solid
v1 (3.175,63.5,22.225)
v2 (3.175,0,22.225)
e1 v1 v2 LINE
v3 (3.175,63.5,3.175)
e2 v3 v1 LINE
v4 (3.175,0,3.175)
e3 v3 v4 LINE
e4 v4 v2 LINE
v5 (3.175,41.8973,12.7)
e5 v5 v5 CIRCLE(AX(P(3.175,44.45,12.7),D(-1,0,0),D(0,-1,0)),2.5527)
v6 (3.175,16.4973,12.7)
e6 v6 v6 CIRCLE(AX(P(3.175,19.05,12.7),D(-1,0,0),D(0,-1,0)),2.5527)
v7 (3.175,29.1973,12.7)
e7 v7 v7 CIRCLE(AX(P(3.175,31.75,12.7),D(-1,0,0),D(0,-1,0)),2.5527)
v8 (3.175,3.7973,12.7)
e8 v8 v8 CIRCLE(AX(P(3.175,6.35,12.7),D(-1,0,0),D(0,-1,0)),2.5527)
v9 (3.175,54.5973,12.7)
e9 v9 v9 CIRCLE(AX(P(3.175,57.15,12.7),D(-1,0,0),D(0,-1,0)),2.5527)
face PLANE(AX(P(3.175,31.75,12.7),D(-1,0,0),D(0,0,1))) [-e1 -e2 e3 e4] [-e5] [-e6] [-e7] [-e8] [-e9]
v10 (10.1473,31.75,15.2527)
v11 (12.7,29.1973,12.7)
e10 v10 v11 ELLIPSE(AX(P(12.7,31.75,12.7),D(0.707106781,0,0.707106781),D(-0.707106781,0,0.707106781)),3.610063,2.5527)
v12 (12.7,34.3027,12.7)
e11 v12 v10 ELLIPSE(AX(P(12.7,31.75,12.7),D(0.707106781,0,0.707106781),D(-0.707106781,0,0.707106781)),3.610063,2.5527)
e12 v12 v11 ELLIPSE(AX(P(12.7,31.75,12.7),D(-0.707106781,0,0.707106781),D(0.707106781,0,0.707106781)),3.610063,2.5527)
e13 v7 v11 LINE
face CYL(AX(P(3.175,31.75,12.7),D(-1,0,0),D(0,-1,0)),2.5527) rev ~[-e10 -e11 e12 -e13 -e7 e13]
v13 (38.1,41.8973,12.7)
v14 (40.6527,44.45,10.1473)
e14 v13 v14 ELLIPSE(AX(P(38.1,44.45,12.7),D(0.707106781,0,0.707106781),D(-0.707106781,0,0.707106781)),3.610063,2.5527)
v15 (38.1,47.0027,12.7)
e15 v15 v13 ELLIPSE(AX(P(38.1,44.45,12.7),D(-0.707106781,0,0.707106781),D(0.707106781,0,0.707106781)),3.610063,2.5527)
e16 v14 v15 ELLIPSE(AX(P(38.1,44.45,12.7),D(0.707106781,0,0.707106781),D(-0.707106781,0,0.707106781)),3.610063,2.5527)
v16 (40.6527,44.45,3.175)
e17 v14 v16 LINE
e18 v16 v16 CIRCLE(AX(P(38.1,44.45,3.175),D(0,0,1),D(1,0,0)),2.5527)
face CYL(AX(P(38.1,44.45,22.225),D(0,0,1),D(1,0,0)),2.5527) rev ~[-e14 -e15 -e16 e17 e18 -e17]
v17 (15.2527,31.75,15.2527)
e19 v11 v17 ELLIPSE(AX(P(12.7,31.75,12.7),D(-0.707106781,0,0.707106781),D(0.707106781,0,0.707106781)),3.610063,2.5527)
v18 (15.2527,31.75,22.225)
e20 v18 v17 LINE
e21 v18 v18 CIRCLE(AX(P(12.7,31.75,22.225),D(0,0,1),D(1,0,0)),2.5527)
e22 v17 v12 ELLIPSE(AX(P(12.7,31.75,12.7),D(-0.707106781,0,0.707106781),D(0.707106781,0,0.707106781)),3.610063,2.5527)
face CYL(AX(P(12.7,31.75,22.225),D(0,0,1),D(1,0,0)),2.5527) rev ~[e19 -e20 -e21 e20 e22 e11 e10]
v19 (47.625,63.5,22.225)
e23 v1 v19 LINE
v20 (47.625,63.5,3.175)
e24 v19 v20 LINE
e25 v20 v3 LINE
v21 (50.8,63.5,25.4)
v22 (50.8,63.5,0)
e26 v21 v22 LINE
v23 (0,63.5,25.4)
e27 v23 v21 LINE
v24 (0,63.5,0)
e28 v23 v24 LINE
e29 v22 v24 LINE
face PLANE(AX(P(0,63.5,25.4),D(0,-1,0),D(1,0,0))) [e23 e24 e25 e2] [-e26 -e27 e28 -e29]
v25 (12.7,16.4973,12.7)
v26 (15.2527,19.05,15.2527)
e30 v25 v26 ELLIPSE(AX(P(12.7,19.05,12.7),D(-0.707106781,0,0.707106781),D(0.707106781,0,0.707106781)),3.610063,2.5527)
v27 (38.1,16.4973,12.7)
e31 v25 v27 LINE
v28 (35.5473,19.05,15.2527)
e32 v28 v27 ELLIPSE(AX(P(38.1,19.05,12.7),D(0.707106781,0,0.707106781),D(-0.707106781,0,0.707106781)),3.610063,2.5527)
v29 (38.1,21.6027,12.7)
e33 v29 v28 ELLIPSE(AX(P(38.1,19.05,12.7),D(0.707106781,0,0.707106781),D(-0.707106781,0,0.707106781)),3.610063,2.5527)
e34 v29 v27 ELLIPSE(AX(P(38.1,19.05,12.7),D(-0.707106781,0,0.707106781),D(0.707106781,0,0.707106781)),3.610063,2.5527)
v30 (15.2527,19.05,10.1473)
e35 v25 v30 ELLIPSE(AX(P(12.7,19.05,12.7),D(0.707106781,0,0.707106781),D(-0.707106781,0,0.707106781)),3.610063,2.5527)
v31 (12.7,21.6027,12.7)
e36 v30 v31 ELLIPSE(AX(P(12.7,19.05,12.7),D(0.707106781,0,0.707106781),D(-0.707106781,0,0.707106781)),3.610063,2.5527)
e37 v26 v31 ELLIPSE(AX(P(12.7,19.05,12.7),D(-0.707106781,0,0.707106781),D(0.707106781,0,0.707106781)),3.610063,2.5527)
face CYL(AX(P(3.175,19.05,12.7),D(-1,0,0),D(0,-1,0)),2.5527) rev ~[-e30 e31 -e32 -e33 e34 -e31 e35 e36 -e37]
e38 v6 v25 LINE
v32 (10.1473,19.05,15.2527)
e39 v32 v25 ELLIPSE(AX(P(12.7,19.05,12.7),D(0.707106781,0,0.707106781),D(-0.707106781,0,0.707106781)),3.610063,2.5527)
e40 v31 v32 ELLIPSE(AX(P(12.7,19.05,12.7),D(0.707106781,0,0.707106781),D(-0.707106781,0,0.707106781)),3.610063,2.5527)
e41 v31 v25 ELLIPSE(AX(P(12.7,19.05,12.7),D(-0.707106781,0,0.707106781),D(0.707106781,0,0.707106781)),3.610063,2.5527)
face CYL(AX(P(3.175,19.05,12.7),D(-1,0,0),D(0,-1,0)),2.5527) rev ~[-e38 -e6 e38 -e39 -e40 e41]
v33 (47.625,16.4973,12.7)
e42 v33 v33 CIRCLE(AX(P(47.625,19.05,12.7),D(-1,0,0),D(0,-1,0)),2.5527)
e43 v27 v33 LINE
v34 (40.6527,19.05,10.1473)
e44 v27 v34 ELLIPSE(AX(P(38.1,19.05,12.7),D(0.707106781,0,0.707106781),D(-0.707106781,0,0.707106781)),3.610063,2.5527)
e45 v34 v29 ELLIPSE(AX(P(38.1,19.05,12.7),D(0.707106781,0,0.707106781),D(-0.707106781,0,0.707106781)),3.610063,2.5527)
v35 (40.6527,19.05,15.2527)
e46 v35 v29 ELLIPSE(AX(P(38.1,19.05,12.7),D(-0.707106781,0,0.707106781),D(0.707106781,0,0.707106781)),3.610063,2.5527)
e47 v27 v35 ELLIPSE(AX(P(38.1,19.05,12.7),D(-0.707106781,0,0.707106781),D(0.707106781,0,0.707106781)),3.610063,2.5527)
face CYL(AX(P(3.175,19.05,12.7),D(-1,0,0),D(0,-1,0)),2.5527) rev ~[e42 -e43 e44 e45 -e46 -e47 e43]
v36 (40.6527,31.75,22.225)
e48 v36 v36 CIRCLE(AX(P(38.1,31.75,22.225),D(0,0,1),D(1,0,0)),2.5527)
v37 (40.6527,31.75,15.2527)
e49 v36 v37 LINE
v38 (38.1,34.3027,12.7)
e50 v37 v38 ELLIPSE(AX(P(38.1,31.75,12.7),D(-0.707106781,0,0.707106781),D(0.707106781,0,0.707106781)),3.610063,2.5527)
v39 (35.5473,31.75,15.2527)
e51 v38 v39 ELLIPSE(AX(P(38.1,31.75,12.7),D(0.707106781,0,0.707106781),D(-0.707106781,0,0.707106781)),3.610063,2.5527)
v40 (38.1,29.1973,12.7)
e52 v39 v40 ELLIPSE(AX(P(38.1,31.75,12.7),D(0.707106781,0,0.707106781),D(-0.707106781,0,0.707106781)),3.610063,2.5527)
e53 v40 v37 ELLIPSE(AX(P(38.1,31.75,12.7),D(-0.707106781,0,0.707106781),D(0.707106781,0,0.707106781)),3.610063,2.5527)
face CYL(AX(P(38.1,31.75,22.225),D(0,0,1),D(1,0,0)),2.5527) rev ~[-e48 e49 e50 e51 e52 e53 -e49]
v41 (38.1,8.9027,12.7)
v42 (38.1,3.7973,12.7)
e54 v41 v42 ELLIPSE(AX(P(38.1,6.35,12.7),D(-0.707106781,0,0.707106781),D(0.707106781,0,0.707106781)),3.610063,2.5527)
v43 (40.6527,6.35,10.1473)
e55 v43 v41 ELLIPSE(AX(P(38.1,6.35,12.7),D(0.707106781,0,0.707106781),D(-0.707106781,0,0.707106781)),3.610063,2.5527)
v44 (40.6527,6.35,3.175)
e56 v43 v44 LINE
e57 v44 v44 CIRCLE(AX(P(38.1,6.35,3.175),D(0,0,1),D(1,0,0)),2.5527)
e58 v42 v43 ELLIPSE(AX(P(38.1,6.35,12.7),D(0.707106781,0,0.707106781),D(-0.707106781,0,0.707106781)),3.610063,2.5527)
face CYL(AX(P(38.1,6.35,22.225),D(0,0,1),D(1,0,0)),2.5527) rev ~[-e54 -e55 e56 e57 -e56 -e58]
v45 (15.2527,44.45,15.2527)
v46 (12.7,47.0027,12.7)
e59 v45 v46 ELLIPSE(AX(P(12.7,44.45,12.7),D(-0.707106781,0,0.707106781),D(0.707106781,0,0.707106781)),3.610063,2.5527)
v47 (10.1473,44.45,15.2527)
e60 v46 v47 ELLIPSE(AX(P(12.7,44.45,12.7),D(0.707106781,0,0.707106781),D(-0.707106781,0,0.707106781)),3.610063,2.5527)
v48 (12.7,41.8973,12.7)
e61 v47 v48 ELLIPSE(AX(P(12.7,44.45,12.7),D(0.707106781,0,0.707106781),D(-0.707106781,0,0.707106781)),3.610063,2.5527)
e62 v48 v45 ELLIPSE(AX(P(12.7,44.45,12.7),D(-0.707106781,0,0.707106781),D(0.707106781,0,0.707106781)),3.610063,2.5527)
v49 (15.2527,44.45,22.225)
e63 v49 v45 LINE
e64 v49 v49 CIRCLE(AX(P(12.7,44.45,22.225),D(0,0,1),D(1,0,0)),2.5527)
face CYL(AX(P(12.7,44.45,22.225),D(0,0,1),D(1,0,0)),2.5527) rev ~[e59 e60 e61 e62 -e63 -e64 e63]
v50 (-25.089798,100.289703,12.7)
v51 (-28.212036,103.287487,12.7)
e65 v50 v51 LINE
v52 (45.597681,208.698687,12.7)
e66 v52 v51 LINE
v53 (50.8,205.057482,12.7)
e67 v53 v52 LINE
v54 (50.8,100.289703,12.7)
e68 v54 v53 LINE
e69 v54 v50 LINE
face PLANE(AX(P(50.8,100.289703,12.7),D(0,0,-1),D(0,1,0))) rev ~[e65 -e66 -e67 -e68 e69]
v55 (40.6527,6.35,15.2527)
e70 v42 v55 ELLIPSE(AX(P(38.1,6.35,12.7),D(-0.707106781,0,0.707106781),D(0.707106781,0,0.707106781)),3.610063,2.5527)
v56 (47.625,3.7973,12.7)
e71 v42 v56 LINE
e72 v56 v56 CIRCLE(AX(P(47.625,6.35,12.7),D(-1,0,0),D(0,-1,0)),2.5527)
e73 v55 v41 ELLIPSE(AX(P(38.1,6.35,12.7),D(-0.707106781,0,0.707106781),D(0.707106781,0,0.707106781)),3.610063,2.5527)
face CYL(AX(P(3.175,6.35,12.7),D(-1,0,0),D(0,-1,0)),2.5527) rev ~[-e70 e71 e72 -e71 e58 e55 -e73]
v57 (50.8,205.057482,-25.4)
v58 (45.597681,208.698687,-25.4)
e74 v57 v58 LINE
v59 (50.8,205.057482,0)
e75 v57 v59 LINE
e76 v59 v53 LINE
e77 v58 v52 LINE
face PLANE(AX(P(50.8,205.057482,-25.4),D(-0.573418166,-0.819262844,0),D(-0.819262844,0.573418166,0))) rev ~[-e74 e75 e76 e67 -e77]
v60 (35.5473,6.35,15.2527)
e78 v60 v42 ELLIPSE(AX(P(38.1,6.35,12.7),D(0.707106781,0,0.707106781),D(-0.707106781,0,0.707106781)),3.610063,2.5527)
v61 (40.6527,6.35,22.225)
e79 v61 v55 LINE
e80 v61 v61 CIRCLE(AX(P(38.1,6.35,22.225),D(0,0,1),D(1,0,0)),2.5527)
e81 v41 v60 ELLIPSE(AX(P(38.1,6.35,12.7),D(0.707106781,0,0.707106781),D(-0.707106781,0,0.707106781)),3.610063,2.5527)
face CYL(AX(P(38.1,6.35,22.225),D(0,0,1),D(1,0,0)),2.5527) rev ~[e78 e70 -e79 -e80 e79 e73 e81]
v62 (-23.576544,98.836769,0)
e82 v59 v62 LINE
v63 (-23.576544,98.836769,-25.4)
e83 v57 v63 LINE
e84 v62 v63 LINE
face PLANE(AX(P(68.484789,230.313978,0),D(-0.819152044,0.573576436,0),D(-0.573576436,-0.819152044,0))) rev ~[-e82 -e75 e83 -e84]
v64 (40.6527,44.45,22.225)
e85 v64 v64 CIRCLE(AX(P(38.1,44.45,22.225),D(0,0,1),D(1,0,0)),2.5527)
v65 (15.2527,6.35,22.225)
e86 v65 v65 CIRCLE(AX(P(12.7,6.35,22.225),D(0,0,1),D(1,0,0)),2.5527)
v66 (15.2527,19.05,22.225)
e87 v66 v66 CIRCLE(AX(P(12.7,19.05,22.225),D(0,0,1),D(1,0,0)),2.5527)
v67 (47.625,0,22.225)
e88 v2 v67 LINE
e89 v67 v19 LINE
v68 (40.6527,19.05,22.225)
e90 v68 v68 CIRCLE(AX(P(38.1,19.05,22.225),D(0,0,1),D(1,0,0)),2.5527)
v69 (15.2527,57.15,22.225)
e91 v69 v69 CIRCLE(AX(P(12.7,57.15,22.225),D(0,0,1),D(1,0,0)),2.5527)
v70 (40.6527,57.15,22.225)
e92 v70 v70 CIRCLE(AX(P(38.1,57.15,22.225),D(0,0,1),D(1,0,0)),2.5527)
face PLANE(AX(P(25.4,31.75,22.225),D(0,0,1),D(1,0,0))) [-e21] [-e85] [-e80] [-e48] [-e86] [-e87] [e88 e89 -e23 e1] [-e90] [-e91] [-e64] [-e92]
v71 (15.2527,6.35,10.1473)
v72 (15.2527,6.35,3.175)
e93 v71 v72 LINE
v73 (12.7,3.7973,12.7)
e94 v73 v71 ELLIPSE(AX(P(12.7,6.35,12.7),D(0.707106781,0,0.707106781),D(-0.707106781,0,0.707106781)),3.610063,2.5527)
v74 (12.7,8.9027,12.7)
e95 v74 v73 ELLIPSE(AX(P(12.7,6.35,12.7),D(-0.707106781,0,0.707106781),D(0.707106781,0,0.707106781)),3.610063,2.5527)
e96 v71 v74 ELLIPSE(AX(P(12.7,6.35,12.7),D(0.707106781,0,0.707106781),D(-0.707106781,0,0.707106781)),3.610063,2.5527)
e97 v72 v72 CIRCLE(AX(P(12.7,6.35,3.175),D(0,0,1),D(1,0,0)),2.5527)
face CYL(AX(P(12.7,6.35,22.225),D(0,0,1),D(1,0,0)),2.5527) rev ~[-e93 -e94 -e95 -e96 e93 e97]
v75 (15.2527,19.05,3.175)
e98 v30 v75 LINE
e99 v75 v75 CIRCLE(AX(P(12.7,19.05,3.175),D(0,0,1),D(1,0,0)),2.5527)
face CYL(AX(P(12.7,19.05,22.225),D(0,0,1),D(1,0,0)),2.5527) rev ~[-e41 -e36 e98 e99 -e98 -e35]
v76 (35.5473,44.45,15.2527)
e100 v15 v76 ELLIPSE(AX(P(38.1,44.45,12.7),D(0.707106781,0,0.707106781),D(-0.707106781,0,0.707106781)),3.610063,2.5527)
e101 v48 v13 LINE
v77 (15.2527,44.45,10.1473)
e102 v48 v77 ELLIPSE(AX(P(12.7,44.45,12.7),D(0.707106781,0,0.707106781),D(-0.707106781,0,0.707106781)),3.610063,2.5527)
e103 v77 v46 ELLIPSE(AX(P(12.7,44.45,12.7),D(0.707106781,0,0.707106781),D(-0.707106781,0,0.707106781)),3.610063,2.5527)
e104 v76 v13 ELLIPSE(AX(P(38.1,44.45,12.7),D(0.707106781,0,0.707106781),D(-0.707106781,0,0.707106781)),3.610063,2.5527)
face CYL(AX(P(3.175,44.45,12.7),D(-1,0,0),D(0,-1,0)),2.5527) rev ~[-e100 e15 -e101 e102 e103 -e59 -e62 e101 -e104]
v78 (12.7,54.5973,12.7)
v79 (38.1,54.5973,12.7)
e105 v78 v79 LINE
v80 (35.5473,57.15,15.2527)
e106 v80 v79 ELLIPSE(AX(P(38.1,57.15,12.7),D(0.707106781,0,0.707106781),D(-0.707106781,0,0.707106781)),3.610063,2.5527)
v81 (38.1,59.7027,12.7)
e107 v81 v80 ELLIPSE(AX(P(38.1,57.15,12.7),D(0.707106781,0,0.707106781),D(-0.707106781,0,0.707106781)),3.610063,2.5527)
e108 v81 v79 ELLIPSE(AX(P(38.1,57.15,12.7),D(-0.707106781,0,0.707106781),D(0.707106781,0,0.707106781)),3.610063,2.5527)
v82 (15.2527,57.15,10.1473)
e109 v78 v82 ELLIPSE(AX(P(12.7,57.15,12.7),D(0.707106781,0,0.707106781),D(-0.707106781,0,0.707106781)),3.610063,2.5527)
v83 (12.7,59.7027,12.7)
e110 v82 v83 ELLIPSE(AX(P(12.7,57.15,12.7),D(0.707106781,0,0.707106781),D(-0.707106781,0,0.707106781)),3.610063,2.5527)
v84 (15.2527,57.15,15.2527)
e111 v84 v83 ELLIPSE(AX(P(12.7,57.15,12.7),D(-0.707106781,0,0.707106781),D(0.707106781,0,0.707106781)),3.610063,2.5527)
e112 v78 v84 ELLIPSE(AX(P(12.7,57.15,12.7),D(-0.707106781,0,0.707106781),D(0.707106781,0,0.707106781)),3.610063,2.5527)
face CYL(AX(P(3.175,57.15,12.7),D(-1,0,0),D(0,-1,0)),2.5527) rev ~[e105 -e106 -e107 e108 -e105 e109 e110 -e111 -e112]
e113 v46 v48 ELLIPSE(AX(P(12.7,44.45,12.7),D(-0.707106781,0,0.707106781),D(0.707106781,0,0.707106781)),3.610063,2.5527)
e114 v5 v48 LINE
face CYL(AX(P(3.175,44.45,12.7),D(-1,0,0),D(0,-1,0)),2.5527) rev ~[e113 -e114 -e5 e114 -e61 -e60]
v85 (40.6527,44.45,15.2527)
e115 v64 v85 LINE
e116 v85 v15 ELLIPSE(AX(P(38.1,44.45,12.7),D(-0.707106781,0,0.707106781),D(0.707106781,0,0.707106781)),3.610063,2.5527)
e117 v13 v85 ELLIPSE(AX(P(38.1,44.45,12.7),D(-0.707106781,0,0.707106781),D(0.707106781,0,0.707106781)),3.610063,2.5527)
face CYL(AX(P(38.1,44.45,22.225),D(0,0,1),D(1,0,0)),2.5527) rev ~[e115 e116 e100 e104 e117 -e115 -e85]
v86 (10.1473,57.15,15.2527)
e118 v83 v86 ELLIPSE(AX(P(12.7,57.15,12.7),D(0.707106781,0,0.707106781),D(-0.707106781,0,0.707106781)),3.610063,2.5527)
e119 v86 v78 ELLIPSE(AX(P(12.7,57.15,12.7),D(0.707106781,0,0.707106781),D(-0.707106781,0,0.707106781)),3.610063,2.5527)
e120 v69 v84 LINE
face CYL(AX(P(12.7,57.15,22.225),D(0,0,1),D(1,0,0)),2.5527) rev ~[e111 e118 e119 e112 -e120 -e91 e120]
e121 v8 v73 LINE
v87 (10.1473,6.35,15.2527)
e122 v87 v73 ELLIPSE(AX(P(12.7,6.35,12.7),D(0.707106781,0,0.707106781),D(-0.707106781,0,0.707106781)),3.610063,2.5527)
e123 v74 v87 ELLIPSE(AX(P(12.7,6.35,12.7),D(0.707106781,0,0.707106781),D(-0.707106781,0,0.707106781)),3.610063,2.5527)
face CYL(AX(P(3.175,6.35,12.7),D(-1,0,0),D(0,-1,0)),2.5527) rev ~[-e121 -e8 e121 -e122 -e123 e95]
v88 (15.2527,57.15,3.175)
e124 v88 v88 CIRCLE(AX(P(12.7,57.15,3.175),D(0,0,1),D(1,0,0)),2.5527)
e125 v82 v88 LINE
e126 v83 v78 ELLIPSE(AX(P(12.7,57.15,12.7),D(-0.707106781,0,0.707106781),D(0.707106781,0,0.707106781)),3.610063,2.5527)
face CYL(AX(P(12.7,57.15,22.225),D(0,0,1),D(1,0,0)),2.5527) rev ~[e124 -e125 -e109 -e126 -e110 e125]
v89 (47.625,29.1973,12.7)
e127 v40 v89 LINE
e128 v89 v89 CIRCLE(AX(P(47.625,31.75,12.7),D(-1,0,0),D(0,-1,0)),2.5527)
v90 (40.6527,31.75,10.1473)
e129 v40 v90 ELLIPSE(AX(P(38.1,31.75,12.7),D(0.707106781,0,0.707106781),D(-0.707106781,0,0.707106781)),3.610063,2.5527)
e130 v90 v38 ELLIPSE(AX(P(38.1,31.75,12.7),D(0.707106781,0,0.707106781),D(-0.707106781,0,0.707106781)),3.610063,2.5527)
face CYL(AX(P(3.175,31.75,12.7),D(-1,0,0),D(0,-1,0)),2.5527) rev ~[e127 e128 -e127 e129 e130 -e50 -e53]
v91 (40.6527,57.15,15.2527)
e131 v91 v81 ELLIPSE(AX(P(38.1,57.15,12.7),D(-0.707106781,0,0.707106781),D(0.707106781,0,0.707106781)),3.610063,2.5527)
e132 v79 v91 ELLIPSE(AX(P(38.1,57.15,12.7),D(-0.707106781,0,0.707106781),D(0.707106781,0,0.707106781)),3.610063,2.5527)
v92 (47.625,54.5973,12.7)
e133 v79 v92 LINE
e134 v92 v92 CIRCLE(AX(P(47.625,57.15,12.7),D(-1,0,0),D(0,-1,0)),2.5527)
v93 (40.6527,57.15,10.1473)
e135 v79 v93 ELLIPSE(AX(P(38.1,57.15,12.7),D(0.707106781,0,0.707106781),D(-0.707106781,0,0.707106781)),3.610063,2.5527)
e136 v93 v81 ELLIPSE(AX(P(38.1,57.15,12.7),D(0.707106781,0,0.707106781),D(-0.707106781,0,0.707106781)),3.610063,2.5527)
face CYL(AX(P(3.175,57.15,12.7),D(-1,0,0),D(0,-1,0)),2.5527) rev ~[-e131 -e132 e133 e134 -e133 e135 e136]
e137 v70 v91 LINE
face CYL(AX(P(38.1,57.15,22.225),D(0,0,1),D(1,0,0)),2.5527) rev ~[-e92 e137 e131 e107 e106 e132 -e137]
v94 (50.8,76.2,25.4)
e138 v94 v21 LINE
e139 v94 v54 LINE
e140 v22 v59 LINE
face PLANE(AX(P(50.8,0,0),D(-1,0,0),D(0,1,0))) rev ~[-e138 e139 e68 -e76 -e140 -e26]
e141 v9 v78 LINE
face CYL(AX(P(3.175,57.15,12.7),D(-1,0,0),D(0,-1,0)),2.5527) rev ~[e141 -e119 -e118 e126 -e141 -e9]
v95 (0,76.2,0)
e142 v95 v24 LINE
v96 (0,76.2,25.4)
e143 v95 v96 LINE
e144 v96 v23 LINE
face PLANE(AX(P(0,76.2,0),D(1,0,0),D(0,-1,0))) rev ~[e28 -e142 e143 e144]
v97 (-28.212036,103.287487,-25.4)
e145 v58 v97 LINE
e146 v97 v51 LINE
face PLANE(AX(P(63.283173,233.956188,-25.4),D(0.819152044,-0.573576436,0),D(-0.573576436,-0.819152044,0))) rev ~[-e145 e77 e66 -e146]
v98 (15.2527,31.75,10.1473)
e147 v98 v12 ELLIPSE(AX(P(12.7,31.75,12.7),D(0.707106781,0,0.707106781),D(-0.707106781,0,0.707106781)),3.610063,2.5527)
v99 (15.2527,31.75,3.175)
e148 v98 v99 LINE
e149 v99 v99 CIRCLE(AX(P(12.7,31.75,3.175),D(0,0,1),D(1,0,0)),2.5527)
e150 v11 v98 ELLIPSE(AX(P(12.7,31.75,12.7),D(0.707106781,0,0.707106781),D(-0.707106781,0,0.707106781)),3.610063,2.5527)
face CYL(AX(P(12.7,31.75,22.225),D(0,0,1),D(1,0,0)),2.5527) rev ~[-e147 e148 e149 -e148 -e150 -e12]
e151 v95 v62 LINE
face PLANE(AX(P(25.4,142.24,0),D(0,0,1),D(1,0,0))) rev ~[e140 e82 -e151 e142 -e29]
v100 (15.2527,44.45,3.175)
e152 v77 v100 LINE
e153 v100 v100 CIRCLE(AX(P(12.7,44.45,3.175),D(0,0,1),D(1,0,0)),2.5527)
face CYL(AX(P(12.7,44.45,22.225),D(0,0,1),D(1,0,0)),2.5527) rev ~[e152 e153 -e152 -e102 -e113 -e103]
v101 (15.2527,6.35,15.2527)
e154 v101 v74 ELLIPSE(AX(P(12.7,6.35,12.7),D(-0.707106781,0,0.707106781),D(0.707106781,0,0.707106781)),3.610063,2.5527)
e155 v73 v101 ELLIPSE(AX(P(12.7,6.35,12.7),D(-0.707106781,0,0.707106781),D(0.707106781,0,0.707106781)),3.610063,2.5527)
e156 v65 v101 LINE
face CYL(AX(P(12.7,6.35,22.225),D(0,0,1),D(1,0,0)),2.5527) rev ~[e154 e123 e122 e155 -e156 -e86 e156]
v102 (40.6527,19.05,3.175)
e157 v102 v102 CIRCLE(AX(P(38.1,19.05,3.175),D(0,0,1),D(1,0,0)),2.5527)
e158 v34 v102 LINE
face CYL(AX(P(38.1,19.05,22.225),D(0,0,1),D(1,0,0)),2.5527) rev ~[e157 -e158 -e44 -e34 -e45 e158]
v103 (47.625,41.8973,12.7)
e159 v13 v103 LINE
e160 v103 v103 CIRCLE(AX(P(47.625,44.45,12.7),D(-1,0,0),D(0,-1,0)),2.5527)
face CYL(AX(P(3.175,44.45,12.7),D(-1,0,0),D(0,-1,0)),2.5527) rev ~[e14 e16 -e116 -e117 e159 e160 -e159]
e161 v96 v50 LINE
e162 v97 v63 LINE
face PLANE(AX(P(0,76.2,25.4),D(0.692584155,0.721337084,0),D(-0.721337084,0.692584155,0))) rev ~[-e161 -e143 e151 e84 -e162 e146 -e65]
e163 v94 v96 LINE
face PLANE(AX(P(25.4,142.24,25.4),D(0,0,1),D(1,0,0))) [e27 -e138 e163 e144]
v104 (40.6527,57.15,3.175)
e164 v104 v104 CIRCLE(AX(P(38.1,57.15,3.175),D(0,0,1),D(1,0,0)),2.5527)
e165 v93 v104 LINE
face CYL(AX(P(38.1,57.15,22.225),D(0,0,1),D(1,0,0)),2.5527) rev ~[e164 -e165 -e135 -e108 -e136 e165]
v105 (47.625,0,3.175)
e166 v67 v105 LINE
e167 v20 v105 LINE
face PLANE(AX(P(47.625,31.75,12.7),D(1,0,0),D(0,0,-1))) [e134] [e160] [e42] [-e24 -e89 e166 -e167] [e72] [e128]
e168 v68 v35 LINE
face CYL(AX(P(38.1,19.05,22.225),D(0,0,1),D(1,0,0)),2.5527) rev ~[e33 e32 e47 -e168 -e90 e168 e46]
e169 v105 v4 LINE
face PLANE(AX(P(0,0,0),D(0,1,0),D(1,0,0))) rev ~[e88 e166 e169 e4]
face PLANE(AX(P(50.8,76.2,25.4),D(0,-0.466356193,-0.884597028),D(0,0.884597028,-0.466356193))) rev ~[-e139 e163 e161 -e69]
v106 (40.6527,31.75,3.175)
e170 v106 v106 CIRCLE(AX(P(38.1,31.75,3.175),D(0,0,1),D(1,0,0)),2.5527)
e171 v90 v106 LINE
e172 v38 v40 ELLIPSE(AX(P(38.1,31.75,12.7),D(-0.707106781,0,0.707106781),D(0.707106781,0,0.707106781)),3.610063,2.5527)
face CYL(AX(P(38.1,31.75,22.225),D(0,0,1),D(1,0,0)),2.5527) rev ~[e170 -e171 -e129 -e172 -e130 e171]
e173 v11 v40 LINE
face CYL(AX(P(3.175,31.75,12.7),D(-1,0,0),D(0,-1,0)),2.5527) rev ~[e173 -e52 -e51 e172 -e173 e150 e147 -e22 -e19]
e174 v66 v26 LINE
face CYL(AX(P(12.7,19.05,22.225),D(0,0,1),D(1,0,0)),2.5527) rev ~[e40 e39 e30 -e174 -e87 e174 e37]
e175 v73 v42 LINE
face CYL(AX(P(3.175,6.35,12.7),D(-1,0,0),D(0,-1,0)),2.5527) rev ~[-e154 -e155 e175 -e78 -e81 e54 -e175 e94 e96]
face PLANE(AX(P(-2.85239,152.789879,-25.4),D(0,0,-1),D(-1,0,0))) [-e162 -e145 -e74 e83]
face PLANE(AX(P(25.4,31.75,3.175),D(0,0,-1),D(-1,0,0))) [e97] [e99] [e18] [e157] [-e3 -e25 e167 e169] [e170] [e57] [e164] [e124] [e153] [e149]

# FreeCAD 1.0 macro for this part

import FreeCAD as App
import Part
import Sketcher

V = App.Vector
Q = App.Units.Quantity


def add_polygon(sketch, points):
    """Adds a closed chain of lines whose ends are joined by coincident constraints."""
    first, n = sketch.GeometryCount, len(points)
    for a, b in zip(points, points[1:] + points[:1]):
        sketch.addGeometry(Part.LineSegment(App.Vector(*a, 0), App.Vector(*b, 0)), False)
    for i in range(n):
        sketch.addConstraint(Sketcher.Constraint("Coincident", first + i, 2, first + (i + 1) % n, 1))

doc = App.newDocument("Part")
params = doc.addObject("Spreadsheet::Sheet", "Params")
for row, (alias, value) in enumerate([
    ("sketch1_width", "4 in"),
    ("sketch1_width2", "10 in"),
    ("sketch1_height", "7 in"),
    ("sketch1_height2", "3 in"),
    ("pad1_length", "1 in"),
    ("sketch2_width", "2 in"),
    ("sketch2_height", "2.5 in"),
    ("pocket1_length", "0.125 in"),
    ("sketch3_height", "1 in"),
    ("sketch3_width", "2.5 in"),
    ("pocket2_length", "0.125 in"),
    ("sketch4_width", "2 in"),
    ("sketch4_height", "2.5 in"),
    ("pocket3_length", "0.125 in"),
    ("sketch5_height", "1 in"),
    ("sketch5_width", "2.5 in"),
    ("pocket4_length", "0.125 in"),
    ("sketch6_width", "4 in"),
    ("sketch6_height", "7 in"),
    ("sketch7_height", "0.445 in"),
    ("sketch10_diameter", "0.201 in"),
    ("sketch11_diameter", "0.201 in"),
    ("sketch12_length", "1.1 in"),
    ("pad2_length", "1 in"),
    ("sketch13_length", "1.1 in"),
    ("sketch14_length", "2.4 in"),
    ("sketch15_height", "0.5 in"),
    ("sketch15_width", "5.75 in"),
    ("sketch16_length", "0.85 in"),
    ("sketch17_length", "0.25 in"),
], start=1):
    params.set(f"A{row}", alias)
    params.set(f"B{row}", "=" + value)
    params.setAlias(f"B{row}", alias)

body = doc.addObject("PartDesign::Body", "Body")

sketch1 = doc.addObject("Sketcher::SketchObject", "Sketch")
body.addObject(sketch1)
sketch1.AttachmentSupport = (doc.XY_Plane, [""])
sketch1.MapMode = "FlatFace"
add_polygon(sketch1, [(51, 76), (152, 76), (152, 254), (-102, 254), (-102, 76), (0, 76), (0, 0), (51, 0)])
sketch1.addConstraint([
    Sketcher.Constraint("Horizontal", 0),
    Sketcher.Constraint("Vertical", 1),
    Sketcher.Constraint("Horizontal", 2),
    Sketcher.Constraint("Vertical", 3),
    Sketcher.Constraint("Horizontal", 4),
    Sketcher.Constraint("Vertical", 5),
    Sketcher.Constraint("Horizontal", 6),
    Sketcher.Constraint("Vertical", 7),
    Sketcher.Constraint("Coincident", 5, 2, -1, 1),
    Sketcher.Constraint("Horizontal", 0, 2, 3, 2),
    Sketcher.Constraint("Equal", 0, 4),
    Sketcher.Constraint("DistanceX", 0, 1, 0, 2, Q("4 in")),
    Sketcher.Constraint("DistanceX", 2, 2, 2, 1, Q("10 in")),
    Sketcher.Constraint("DistanceY", 1, 1, 1, 2, Q("7 in")),
    Sketcher.Constraint("DistanceY", 5, 2, 5, 1, Q("3 in")),
])
sketch1.setExpression("Constraints[19]", "Params.sketch1_width")
sketch1.setExpression("Constraints[20]", "Params.sketch1_width2")
sketch1.setExpression("Constraints[21]", "Params.sketch1_height")
sketch1.setExpression("Constraints[22]", "Params.sketch1_height2")
pad1 = doc.addObject("PartDesign::Pad", "Pad")
body.addObject(pad1)
pad1.Profile = sketch1
pad1.setExpression("Length", "Params.pad1_length")

sketch2 = doc.addObject("Sketcher::SketchObject", "Sketch001")
body.addObject(sketch2)
sketch2.AttachmentSupport = (doc.XY_Plane, [""])
sketch2.MapMode = "FlatFace"
sketch2.AttachmentOffset = App.Placement(V(0, 0, 1 * 25.4), App.Rotation())
add_polygon(sketch2, [(0, 64), (0, 0), (51, 0), (51, 64)])
sketch2.addConstraint([
    Sketcher.Constraint("Vertical", 0),
    Sketcher.Constraint("Horizontal", 1),
    Sketcher.Constraint("Vertical", 2),
    Sketcher.Constraint("Horizontal", 3),
    Sketcher.Constraint("Coincident", 0, 2, -1, 1),
    Sketcher.Constraint("DistanceX", 1, 1, 1, 2, Q("2 in")),
    Sketcher.Constraint("DistanceY", 0, 2, 0, 1, Q("2.5 in")),
])
sketch2.setExpression("Constraints[9]", "Params.sketch2_width")
sketch2.setExpression("Constraints[10]", "Params.sketch2_height")
pocket1 = doc.addObject("PartDesign::Pocket", "Pocket")
body.addObject(pocket1)
pocket1.Profile = sketch2
pocket1.setExpression("Length", "Params.pocket1_length")

sketch3 = doc.addObject("Sketcher::SketchObject", "Sketch002")
body.addObject(sketch3)
sketch3.AttachmentSupport = (doc.YZ_Plane, [""])
sketch3.MapMode = "FlatFace"
add_polygon(sketch3, [(64, 0), (0, 0), (0, 25), (64, 25)])
sketch3.addConstraint([
    Sketcher.Constraint("Horizontal", 0),
    Sketcher.Constraint("Vertical", 1),
    Sketcher.Constraint("Horizontal", 2),
    Sketcher.Constraint("Vertical", 3),
    Sketcher.Constraint("Coincident", 0, 2, -1, 1),
    Sketcher.Constraint("DistanceY", 1, 1, 1, 2, Q("1 in")),
    Sketcher.Constraint("DistanceX", 0, 2, 0, 1, Q("2.5 in")),
])
sketch3.setExpression("Constraints[9]", "Params.sketch3_height")
sketch3.setExpression("Constraints[10]", "Params.sketch3_width")
pocket2 = doc.addObject("PartDesign::Pocket", "Pocket001")
body.addObject(pocket2)
pocket2.Profile = sketch3
pocket2.setExpression("Length", "Params.pocket2_length")
pocket2.Reversed = True

sketch4 = doc.addObject("Sketcher::SketchObject", "Sketch003")
body.addObject(sketch4)
sketch4.AttachmentSupport = (doc.XY_Plane, [""])
sketch4.MapMode = "FlatFace"
add_polygon(sketch4, [(51, 64), (51, 0), (0, 0), (0, 64)])
sketch4.addConstraint([
    Sketcher.Constraint("Vertical", 0),
    Sketcher.Constraint("Horizontal", 1),
    Sketcher.Constraint("Vertical", 2),
    Sketcher.Constraint("Horizontal", 3),
    Sketcher.Constraint("Coincident", 1, 2, -1, 1),
    Sketcher.Constraint("DistanceX", 1, 2, 1, 1, Q("2 in")),
    Sketcher.Constraint("DistanceY", 0, 2, 0, 1, Q("2.5 in")),
])
sketch4.setExpression("Constraints[9]", "Params.sketch4_width")
sketch4.setExpression("Constraints[10]", "Params.sketch4_height")
pocket3 = doc.addObject("PartDesign::Pocket", "Pocket002")
body.addObject(pocket3)
pocket3.Profile = sketch4
pocket3.setExpression("Length", "Params.pocket3_length")
pocket3.Reversed = True

sketch5 = doc.addObject("Sketcher::SketchObject", "Sketch004")
body.addObject(sketch5)
sketch5.AttachmentSupport = (doc.YZ_Plane, [""])
sketch5.MapMode = "FlatFace"
sketch5.AttachmentOffset = App.Placement(V(0, 0, 2 * 25.4), App.Rotation())
add_polygon(sketch5, [(64, 25), (0, 25), (0, 0), (64, 0)])
sketch5.addConstraint([
    Sketcher.Constraint("Horizontal", 0),
    Sketcher.Constraint("Vertical", 1),
    Sketcher.Constraint("Horizontal", 2),
    Sketcher.Constraint("Vertical", 3),
    Sketcher.Constraint("Coincident", 1, 2, -1, 1),
    Sketcher.Constraint("DistanceY", 1, 2, 1, 1, Q("1 in")),
    Sketcher.Constraint("DistanceX", 0, 2, 0, 1, Q("2.5 in")),
])
sketch5.setExpression("Constraints[9]", "Params.sketch5_height")
sketch5.setExpression("Constraints[10]", "Params.sketch5_width")
pocket4 = doc.addObject("PartDesign::Pocket", "Pocket003")
body.addObject(pocket4)
pocket4.Profile = sketch5
pocket4.setExpression("Length", "Params.pocket4_length")

sketch6 = doc.addObject("Sketcher::SketchObject", "Sketch005")
body.addObject(sketch6)
sketch6.AttachmentSupport = (doc.XY_Plane, [""])
sketch6.MapMode = "FlatFace"
sketch6.AttachmentOffset = App.Placement(V(0, 0, 1 * 25.4), App.Rotation())
add_polygon(sketch6, [(51, 254), (51, 76), (152, 76), (152, 254)])
sketch6.addConstraint([
    Sketcher.Constraint("Vertical", 0),
    Sketcher.Constraint("Horizontal", 1),
    Sketcher.Constraint("Vertical", 2),
    Sketcher.Constraint("Horizontal", 3),
    Sketcher.Constraint("DistanceX", 1, 1, 1, 2, Q("4 in")),
    Sketcher.Constraint("DistanceY", 0, 2, 0, 1, Q("7 in")),
    Sketcher.Constraint("DistanceX", -1, 1, 0, 2, Q("2 in")),
    Sketcher.Constraint("DistanceY", -1, 1, 0, 2, Q("3 in")),
])
sketch6.setExpression("Constraints[8]", "Params.sketch6_width")
sketch6.setExpression("Constraints[9]", "Params.sketch6_height")
pocket5 = doc.addObject("PartDesign::Pocket", "Pocket004")
body.addObject(pocket5)
pocket5.Profile = sketch6
pocket5.Type = "ThroughAll"

sketch7 = doc.addObject("Sketcher::SketchObject", "Sketch006")
body.addObject(sketch7)
sketch7.AttachmentSupport = (doc.XY_Plane, [""])
sketch7.MapMode = "FlatFace"
sketch7.AttachmentOffset = App.Placement(V(0, 0, 1 * 25.4), App.Rotation())
add_polygon(sketch7, [(51, 254), (35, 254), (51, 243)])
sketch7.addConstraint([
    Sketcher.Constraint("Horizontal", 0),
    Sketcher.Constraint("Vertical", 2),
    Sketcher.Constraint("DistanceY", -1, 1, 0, 2, Q("10 in")),
    Sketcher.Constraint("DistanceX", -1, 1, 1, 2, Q("2 in")),
    Sketcher.Constraint("Angle", 1, Q("-35 deg")),
    Sketcher.Constraint("DistanceY", 2, 1, 2, 2, Q("0.445 in")),
])
sketch7.setExpression("Constraints[8]", "Params.sketch7_height")
pocket6 = doc.addObject("PartDesign::Pocket", "Pocket005")
body.addObject(pocket6)
pocket6.Profile = sketch7
pocket6.Type = "ThroughAll"

sketch8 = doc.addObject("Sketcher::SketchObject", "Sketch007")
body.addObject(sketch8)
sketch8.AttachmentSupport = (doc.XY_Plane, [""])
sketch8.MapMode = "FlatFace"
sketch8.AttachmentOffset = App.Placement(V(0, 0, 1 * 25.4), App.Rotation())
add_polygon(sketch8, [(-102, 59), (35, 254), (-102, 254)])
sketch8.addConstraint([
    Sketcher.Constraint("Horizontal", 1),
    Sketcher.Constraint("Vertical", 2),
    Sketcher.Constraint("DistanceY", -1, 1, 0, 2, Q("10 in")),
    Sketcher.Constraint("DistanceX", 1, 2, -1, 1, Q("4 in")),
    Sketcher.Constraint("Angle", 0, Q("55 deg")),
    Sketcher.Constraint("DistanceY", 2, 2, 2, 1, Q("194.596081 mm")),
])
pocket7 = doc.addObject("PartDesign::Pocket", "Pocket006")
body.addObject(pocket7)
pocket7.Profile = sketch8
pocket7.Type = "ThroughAll"

sketch9 = doc.addObject("Sketcher::SketchObject", "Sketch008")
body.addObject(sketch9)
sketch9.AttachmentSupport = (doc.XY_Plane, [""])
sketch9.MapMode = "FlatFace"
sketch9.AttachmentOffset = App.Placement(V(0, 0, 1 * 25.4), App.Rotation())
add_polygon(sketch9, [(46, 246), (35, 254), (-95, 69), (-84, 61)])
sketch9.addConstraint([
    Sketcher.Constraint("Perpendicular", 0, 1),
    Sketcher.Constraint("Perpendicular", 1, 2),
    Sketcher.Constraint("Perpendicular", 2, 3),
    Sketcher.Constraint("DistanceY", -1, 1, 0, 2, Q("10 in")),
    Sketcher.Constraint("Angle", 0, Q("145 deg")),
    Sketcher.Constraint("Distance", 0, Q("0.5258 in")),
    Sketcher.Constraint("DistanceX", 1, 2, -1, 1, Q("94.96986 mm")),
    Sketcher.Constraint("DistanceY", -1, 1, 1, 2, Q("68.87274 mm")),
])
pocket8 = doc.addObject("PartDesign::Pocket", "Pocket007")
body.addObject(pocket8)
pocket8.Profile = sketch9
pocket8.Type = "ThroughAll"

sketch10 = doc.addObject("Sketcher::SketchObject", "Sketch009")
body.addObject(sketch10)
sketch10.AttachmentSupport = (doc.XY_Plane, [""])
sketch10.MapMode = "FlatFace"
sketch10.AttachmentOffset = App.Placement(V(0, 0, 0.875 * 25.4), App.Rotation())
sketch10.addGeometry([
    Part.Circle(V(12.7, 57.1, 0), V(0, 0, 1), 2.6),
    Part.Circle(V(12.7, 44.5, 0), V(0, 0, 1), 2.6),
    Part.Circle(V(12.7, 31.8, 0), V(0, 0, 1), 2.6),
    Part.Circle(V(12.7, 19.1, 0), V(0, 0, 1), 2.6),
    Part.Circle(V(12.7, 6.3, 0), V(0, 0, 1), 2.6),
    Part.Circle(V(38.1, 44.5, 0), V(0, 0, 1), 2.6),
    Part.Circle(V(38.1, 31.8, 0), V(0, 0, 1), 2.6),
    Part.Circle(V(38.1, 19.1, 0), V(0, 0, 1), 2.6),
    Part.Circle(V(38.1, 6.3, 0), V(0, 0, 1), 2.6),
    Part.Circle(V(38.1, 57.1, 0), V(0, 0, 1), 2.6),
], False)
sketch10.addConstraint([
    Sketcher.Constraint("Equal", 0, 1),
    Sketcher.Constraint("Equal", 1, 2),
    Sketcher.Constraint("Equal", 2, 3),
    Sketcher.Constraint("Equal", 3, 4),
    Sketcher.Constraint("Equal", 4, 5),
    Sketcher.Constraint("Equal", 5, 6),
    Sketcher.Constraint("Equal", 6, 7),
    Sketcher.Constraint("Equal", 7, 8),
    Sketcher.Constraint("Equal", 8, 9),
    Sketcher.Constraint("Horizontal", 1, 3, 5, 3),
    Sketcher.Constraint("Horizontal", 2, 3, 6, 3),
    Sketcher.Constraint("Horizontal", 3, 3, 7, 3),
    Sketcher.Constraint("Horizontal", 4, 3, 8, 3),
    Sketcher.Constraint("Horizontal", 0, 3, 9, 3),
    Sketcher.Constraint("Vertical", 0, 3, 1, 3),
    Sketcher.Constraint("Vertical", 1, 3, 2, 3),
    Sketcher.Constraint("Vertical", 2, 3, 3, 3),
    Sketcher.Constraint("Vertical", 3, 3, 4, 3),
    Sketcher.Constraint("Vertical", 5, 3, 6, 3),
    Sketcher.Constraint("Vertical", 6, 3, 7, 3),
    Sketcher.Constraint("Vertical", 7, 3, 8, 3),
    Sketcher.Constraint("Vertical", 8, 3, 9, 3),
    Sketcher.Constraint("Diameter", 0, Q("0.201 in")),
    Sketcher.Constraint("DistanceY", 2, 3, 0, 3, Q("1 in")),
    Sketcher.Constraint("DistanceY", 3, 3, 1, 3, Q("1 in")),
    Sketcher.Constraint("DistanceY", 4, 3, 2, 3, Q("1 in")),
    Sketcher.Constraint("DistanceX", 1, 3, 5, 3, Q("1 in")),
    Sketcher.Constraint("DistanceX", -1, 1, 0, 3, Q("0.5 in")),
    Sketcher.Constraint("DistanceY", 1, 3, 0, 3, Q("0.5 in")),
    Sketcher.Constraint("DistanceY", -1, 1, 0, 3, Q("2.25 in")),
])
sketch10.setExpression("Constraints[22]", "Params.sketch10_diameter")
pocket9 = doc.addObject("PartDesign::Pocket", "Pocket008")
body.addObject(pocket9)
pocket9.Profile = sketch10
pocket9.Type = "ThroughAll"

sketch11 = doc.addObject("Sketcher::SketchObject", "Sketch010")
body.addObject(sketch11)
sketch11.AttachmentSupport = (doc.YZ_Plane, [""])
sketch11.MapMode = "FlatFace"
sketch11.AttachmentOffset = App.Placement(V(0, 0, 0.125 * 25.4), App.Rotation())
sketch11.addGeometry([
    Part.Circle(V(57.1, 12.7, 0), V(0, 0, 1), 2.6),
    Part.Circle(V(44.5, 12.7, 0), V(0, 0, 1), 2.6),
    Part.Circle(V(31.8, 12.7, 0), V(0, 0, 1), 2.6),
    Part.Circle(V(19.1, 12.7, 0), V(0, 0, 1), 2.6),
    Part.Circle(V(6.3, 12.7, 0), V(0, 0, 1), 2.6),
], False)
sketch11.addConstraint([
    Sketcher.Constraint("Equal", 0, 1),
    Sketcher.Constraint("Equal", 1, 2),
    Sketcher.Constraint("Equal", 2, 3),
    Sketcher.Constraint("Equal", 3, 4),
    Sketcher.Constraint("Horizontal", 0, 3, 1, 3),
    Sketcher.Constraint("Horizontal", 1, 3, 2, 3),
    Sketcher.Constraint("Horizontal", 2, 3, 3, 3),
    Sketcher.Constraint("Horizontal", 3, 3, 4, 3),
    Sketcher.Constraint("Diameter", 0, Q("0.201 in")),
    Sketcher.Constraint("DistanceX", 2, 3, 0, 3, Q("1 in")),
    Sketcher.Constraint("DistanceX", 3, 3, 1, 3, Q("1 in")),
    Sketcher.Constraint("DistanceX", 4, 3, 2, 3, Q("1 in")),
    Sketcher.Constraint("DistanceY", -1, 1, 0, 3, Q("0.5 in")),
    Sketcher.Constraint("DistanceX", 1, 3, 0, 3, Q("0.5 in")),
    Sketcher.Constraint("DistanceX", -1, 1, 0, 3, Q("2.25 in")),
])
sketch11.setExpression("Constraints[8]", "Params.sketch11_diameter")
pocket10 = doc.addObject("PartDesign::Pocket", "Pocket009")
body.addObject(pocket10)
pocket10.Profile = sketch11
pocket10.Type = "ThroughAll"
pocket10.Reversed = True

sketch12 = doc.addObject("Sketcher::SketchObject", "Sketch011")
body.addObject(sketch12)
sketch12.AttachmentSupport = (doc.XY_Plane, [""])
sketch12.MapMode = "FlatFace"
add_polygon(sketch12, [(46, 246), (68, 230), (-51, 59), (-74, 75)])
sketch12.addConstraint([
    Sketcher.Constraint("Perpendicular", 0, 1),
    Sketcher.Constraint("Perpendicular", 1, 2),
    Sketcher.Constraint("Perpendicular", 2, 3),
    Sketcher.Constraint("Angle", 0, Q("-35 deg")),
    Sketcher.Constraint("Distance", 0, Q("1.1 in")),
    Sketcher.Constraint("DistanceX", -1, 1, 0, 2, Q("68.484789 mm")),
    Sketcher.Constraint("DistanceX", 1, 2, -1, 1, Q("51.302461 mm")),
    Sketcher.Constraint("DistanceY", -1, 1, 2, 2, Q("75.265781 mm")),
])
sketch12.setExpression("Constraints[8]", "Params.sketch12_length")
pad2 = doc.addObject("PartDesign::Pad", "Pad001")
body.addObject(pad2)
pad2.Profile = sketch12
pad2.setExpression("Length", "Params.pad2_length")
pad2.Reversed = True

sketch13 = doc.addObject("Sketcher::SketchObject", "Sketch012")
body.addObject(sketch13)
sketch13.AttachmentSupport = (doc.XY_Plane, [""])
sketch13.MapMode = "FlatFace"
sketch13.AttachmentOffset = App.Placement(V(0, 0, -1 * 25.4), App.Rotation())
add_polygon(sketch13, [(-73.5, 76.2), (-39.4, 76.2), (-51.3, 59.2), (-74.2, 75.3)])
sketch13.addConstraint([
    Sketcher.Constraint("Horizontal", 0),
    Sketcher.Constraint("Perpendicular", 1, 2),
    Sketcher.Constraint("Perpendicular", 2, 3),
    Sketcher.Constraint("DistanceY", -1, 1, 0, 2, Q("3 in")),
    Sketcher.Constraint("Angle", 1, Q("-125 deg")),
    Sketcher.Constraint("Distance", 2, Q("1.1 in")),
    Sketcher.Constraint("Distance", 1, Q("20.70427 mm")),
    Sketcher.Constraint("DistanceX", 0, 2, -1, 1, Q("39.42698 mm")),
])
sketch13.setExpression("Constraints[9]", "Params.sketch13_length")
pocket11 = doc.addObject("PartDesign::Pocket", "Pocket010")
body.addObject(pocket11)
pocket11.Profile = sketch13
pocket11.Type = "ThroughAll"
pocket11.Reversed = True

sketch14 = doc.addObject("Sketcher::SketchObject", "Sketch013")
body.addObject(sketch14)
sketch14.AttachmentSupport = (doc.XY_Plane, [""])
sketch14.MapMode = "FlatFace"
sketch14.AttachmentOffset = App.Placement(V(0, 0, 1 * 25.4), App.Rotation())
add_polygon(sketch14, [(0, 76), (-44, 118), (-74, 76)])
sketch14.addConstraint([
    Sketcher.Constraint("Horizontal", 2),
    Sketcher.Constraint("PointOnObject", 2, 2, -2),
    Sketcher.Constraint("DistanceY", -1, 1, 1, 2, Q("3 in")),
    Sketcher.Constraint("Angle", 1, Q("-125 deg")),
    Sketcher.Constraint("Distance", 0, Q("2.4 in")),
    Sketcher.Constraint("DistanceX", 2, 1, 2, 2, Q("73.535422 mm")),
])
sketch14.setExpression("Constraints[7]", "Params.sketch14_length")
pocket12 = doc.addObject("PartDesign::Pocket", "Pocket011")
body.addObject(pocket12)
pocket12.Profile = sketch14
pocket12.Type = "ThroughAll"

sketch15 = doc.addObject("Sketcher::SketchObject", "Sketch014")
body.addObject(sketch15)
sketch15.AttachmentSupport = (doc.YZ_Plane, [""])
sketch15.MapMode = "FlatFace"
sketch15.AttachmentOffset = App.Placement(V(0, 0, 2 * 25.4), App.Rotation())
add_polygon(sketch15, [(76, 25), (100, 13), (246, 13), (246, 25)])
sketch15.addConstraint([
    Sketcher.Constraint("Horizontal", 1),
    Sketcher.Constraint("Vertical", 2),
    Sketcher.Constraint("Horizontal", 3),
    Sketcher.Constraint("DistanceY", 2, 1, 2, 2, Q("0.5 in")),
    Sketcher.Constraint("DistanceY", -1, 1, 2, 2, Q("1 in")),
    Sketcher.Constraint("DistanceX", -1, 1, 3, 2, Q("3 in")),
    Sketcher.Constraint("DistanceX", 1, 1, 1, 2, Q("5.75 in")),
    Sketcher.Constraint("DistanceX", 3, 2, 3, 1, Q("170.139703 mm")),
])
sketch15.setExpression("Constraints[7]", "Params.sketch15_height")
sketch15.setExpression("Constraints[10]", "Params.sketch15_width")
pocket13 = doc.addObject("PartDesign::Pocket", "Pocket012")
body.addObject(pocket13)
pocket13.Profile = sketch15
pocket13.Type = "ThroughAll"

sketch16 = doc.addObject("Sketcher::SketchObject", "Sketch015")
body.addObject(sketch16)
sketch16.AttachmentSupport = (doc.XY_Plane, [""])
sketch16.MapMode = "FlatFace"
sketch16.AttachmentOffset = App.Placement(V(0, 0, -1 * 25.4), App.Rotation())
add_polygon(sketch16, [(46, 246), (63, 234), (-28, 103), (-46, 116)])
sketch16.addConstraint([
    Sketcher.Constraint("Perpendicular", 0, 1),
    Sketcher.Constraint("Perpendicular", 1, 2),
    Sketcher.Constraint("Perpendicular", 2, 3),
    Sketcher.Constraint("Angle", 0, Q("-35 deg")),
    Sketcher.Constraint("Distance", 0, Q("0.85 in")),
    Sketcher.Constraint("DistanceY", 1, 2, 0, 2, Q("130.668701 mm")),
    Sketcher.Constraint("DistanceX", 2, 2, -1, 1, Q("45.897528 mm")),
    Sketcher.Constraint("DistanceY", -1, 1, 0, 2, Q("233.956188 mm")),
])
sketch16.setExpression("Constraints[8]", "Params.sketch16_length")
pocket14 = doc.addObject("PartDesign::Pocket", "Pocket013")
body.addObject(pocket14)
pocket14.Profile = sketch16
pocket14.Type = "ThroughAll"
pocket14.Reversed = True

sketch17 = doc.addObject("Sketcher::SketchObject", "Sketch016")
body.addObject(sketch17)
sketch17.AttachmentSupport = (doc.XY_Plane, [""])
sketch17.MapMode = "FlatFace"
sketch17.AttachmentOffset = App.Placement(V(0, 0, -1 * 25.4), App.Rotation())
add_polygon(sketch17, [(51, 205), (46, 209), (63, 234), (68, 230)])
sketch17.addConstraint([
    Sketcher.Constraint("Perpendicular", 1, 2),
    Sketcher.Constraint("Perpendicular", 2, 3),
    Sketcher.Constraint("DistanceX", -1, 1, 3, 2, Q("2 in")),
    Sketcher.Constraint("Angle", 1, Q("55 deg")),
    Sketcher.Constraint("Distance", 0, Q("0.25 in")),
    Sketcher.Constraint("DistanceY", 0, 2, 1, 2, Q("25.257501 mm")),
    Sketcher.Constraint("Distance", 3, Q("30.832488 mm")),
    Sketcher.Constraint("DistanceY", -1, 1, 3, 2, Q("205.057482 mm")),
])
sketch17.setExpression("Constraints[8]", "Params.sketch17_length")
pocket15 = doc.addObject("PartDesign::Pocket", "Pocket014")
body.addObject(pocket15)
pocket15.Profile = sketch17
pocket15.Type = "ThroughAll"
pocket15.Reversed = True

doc.recompute()
